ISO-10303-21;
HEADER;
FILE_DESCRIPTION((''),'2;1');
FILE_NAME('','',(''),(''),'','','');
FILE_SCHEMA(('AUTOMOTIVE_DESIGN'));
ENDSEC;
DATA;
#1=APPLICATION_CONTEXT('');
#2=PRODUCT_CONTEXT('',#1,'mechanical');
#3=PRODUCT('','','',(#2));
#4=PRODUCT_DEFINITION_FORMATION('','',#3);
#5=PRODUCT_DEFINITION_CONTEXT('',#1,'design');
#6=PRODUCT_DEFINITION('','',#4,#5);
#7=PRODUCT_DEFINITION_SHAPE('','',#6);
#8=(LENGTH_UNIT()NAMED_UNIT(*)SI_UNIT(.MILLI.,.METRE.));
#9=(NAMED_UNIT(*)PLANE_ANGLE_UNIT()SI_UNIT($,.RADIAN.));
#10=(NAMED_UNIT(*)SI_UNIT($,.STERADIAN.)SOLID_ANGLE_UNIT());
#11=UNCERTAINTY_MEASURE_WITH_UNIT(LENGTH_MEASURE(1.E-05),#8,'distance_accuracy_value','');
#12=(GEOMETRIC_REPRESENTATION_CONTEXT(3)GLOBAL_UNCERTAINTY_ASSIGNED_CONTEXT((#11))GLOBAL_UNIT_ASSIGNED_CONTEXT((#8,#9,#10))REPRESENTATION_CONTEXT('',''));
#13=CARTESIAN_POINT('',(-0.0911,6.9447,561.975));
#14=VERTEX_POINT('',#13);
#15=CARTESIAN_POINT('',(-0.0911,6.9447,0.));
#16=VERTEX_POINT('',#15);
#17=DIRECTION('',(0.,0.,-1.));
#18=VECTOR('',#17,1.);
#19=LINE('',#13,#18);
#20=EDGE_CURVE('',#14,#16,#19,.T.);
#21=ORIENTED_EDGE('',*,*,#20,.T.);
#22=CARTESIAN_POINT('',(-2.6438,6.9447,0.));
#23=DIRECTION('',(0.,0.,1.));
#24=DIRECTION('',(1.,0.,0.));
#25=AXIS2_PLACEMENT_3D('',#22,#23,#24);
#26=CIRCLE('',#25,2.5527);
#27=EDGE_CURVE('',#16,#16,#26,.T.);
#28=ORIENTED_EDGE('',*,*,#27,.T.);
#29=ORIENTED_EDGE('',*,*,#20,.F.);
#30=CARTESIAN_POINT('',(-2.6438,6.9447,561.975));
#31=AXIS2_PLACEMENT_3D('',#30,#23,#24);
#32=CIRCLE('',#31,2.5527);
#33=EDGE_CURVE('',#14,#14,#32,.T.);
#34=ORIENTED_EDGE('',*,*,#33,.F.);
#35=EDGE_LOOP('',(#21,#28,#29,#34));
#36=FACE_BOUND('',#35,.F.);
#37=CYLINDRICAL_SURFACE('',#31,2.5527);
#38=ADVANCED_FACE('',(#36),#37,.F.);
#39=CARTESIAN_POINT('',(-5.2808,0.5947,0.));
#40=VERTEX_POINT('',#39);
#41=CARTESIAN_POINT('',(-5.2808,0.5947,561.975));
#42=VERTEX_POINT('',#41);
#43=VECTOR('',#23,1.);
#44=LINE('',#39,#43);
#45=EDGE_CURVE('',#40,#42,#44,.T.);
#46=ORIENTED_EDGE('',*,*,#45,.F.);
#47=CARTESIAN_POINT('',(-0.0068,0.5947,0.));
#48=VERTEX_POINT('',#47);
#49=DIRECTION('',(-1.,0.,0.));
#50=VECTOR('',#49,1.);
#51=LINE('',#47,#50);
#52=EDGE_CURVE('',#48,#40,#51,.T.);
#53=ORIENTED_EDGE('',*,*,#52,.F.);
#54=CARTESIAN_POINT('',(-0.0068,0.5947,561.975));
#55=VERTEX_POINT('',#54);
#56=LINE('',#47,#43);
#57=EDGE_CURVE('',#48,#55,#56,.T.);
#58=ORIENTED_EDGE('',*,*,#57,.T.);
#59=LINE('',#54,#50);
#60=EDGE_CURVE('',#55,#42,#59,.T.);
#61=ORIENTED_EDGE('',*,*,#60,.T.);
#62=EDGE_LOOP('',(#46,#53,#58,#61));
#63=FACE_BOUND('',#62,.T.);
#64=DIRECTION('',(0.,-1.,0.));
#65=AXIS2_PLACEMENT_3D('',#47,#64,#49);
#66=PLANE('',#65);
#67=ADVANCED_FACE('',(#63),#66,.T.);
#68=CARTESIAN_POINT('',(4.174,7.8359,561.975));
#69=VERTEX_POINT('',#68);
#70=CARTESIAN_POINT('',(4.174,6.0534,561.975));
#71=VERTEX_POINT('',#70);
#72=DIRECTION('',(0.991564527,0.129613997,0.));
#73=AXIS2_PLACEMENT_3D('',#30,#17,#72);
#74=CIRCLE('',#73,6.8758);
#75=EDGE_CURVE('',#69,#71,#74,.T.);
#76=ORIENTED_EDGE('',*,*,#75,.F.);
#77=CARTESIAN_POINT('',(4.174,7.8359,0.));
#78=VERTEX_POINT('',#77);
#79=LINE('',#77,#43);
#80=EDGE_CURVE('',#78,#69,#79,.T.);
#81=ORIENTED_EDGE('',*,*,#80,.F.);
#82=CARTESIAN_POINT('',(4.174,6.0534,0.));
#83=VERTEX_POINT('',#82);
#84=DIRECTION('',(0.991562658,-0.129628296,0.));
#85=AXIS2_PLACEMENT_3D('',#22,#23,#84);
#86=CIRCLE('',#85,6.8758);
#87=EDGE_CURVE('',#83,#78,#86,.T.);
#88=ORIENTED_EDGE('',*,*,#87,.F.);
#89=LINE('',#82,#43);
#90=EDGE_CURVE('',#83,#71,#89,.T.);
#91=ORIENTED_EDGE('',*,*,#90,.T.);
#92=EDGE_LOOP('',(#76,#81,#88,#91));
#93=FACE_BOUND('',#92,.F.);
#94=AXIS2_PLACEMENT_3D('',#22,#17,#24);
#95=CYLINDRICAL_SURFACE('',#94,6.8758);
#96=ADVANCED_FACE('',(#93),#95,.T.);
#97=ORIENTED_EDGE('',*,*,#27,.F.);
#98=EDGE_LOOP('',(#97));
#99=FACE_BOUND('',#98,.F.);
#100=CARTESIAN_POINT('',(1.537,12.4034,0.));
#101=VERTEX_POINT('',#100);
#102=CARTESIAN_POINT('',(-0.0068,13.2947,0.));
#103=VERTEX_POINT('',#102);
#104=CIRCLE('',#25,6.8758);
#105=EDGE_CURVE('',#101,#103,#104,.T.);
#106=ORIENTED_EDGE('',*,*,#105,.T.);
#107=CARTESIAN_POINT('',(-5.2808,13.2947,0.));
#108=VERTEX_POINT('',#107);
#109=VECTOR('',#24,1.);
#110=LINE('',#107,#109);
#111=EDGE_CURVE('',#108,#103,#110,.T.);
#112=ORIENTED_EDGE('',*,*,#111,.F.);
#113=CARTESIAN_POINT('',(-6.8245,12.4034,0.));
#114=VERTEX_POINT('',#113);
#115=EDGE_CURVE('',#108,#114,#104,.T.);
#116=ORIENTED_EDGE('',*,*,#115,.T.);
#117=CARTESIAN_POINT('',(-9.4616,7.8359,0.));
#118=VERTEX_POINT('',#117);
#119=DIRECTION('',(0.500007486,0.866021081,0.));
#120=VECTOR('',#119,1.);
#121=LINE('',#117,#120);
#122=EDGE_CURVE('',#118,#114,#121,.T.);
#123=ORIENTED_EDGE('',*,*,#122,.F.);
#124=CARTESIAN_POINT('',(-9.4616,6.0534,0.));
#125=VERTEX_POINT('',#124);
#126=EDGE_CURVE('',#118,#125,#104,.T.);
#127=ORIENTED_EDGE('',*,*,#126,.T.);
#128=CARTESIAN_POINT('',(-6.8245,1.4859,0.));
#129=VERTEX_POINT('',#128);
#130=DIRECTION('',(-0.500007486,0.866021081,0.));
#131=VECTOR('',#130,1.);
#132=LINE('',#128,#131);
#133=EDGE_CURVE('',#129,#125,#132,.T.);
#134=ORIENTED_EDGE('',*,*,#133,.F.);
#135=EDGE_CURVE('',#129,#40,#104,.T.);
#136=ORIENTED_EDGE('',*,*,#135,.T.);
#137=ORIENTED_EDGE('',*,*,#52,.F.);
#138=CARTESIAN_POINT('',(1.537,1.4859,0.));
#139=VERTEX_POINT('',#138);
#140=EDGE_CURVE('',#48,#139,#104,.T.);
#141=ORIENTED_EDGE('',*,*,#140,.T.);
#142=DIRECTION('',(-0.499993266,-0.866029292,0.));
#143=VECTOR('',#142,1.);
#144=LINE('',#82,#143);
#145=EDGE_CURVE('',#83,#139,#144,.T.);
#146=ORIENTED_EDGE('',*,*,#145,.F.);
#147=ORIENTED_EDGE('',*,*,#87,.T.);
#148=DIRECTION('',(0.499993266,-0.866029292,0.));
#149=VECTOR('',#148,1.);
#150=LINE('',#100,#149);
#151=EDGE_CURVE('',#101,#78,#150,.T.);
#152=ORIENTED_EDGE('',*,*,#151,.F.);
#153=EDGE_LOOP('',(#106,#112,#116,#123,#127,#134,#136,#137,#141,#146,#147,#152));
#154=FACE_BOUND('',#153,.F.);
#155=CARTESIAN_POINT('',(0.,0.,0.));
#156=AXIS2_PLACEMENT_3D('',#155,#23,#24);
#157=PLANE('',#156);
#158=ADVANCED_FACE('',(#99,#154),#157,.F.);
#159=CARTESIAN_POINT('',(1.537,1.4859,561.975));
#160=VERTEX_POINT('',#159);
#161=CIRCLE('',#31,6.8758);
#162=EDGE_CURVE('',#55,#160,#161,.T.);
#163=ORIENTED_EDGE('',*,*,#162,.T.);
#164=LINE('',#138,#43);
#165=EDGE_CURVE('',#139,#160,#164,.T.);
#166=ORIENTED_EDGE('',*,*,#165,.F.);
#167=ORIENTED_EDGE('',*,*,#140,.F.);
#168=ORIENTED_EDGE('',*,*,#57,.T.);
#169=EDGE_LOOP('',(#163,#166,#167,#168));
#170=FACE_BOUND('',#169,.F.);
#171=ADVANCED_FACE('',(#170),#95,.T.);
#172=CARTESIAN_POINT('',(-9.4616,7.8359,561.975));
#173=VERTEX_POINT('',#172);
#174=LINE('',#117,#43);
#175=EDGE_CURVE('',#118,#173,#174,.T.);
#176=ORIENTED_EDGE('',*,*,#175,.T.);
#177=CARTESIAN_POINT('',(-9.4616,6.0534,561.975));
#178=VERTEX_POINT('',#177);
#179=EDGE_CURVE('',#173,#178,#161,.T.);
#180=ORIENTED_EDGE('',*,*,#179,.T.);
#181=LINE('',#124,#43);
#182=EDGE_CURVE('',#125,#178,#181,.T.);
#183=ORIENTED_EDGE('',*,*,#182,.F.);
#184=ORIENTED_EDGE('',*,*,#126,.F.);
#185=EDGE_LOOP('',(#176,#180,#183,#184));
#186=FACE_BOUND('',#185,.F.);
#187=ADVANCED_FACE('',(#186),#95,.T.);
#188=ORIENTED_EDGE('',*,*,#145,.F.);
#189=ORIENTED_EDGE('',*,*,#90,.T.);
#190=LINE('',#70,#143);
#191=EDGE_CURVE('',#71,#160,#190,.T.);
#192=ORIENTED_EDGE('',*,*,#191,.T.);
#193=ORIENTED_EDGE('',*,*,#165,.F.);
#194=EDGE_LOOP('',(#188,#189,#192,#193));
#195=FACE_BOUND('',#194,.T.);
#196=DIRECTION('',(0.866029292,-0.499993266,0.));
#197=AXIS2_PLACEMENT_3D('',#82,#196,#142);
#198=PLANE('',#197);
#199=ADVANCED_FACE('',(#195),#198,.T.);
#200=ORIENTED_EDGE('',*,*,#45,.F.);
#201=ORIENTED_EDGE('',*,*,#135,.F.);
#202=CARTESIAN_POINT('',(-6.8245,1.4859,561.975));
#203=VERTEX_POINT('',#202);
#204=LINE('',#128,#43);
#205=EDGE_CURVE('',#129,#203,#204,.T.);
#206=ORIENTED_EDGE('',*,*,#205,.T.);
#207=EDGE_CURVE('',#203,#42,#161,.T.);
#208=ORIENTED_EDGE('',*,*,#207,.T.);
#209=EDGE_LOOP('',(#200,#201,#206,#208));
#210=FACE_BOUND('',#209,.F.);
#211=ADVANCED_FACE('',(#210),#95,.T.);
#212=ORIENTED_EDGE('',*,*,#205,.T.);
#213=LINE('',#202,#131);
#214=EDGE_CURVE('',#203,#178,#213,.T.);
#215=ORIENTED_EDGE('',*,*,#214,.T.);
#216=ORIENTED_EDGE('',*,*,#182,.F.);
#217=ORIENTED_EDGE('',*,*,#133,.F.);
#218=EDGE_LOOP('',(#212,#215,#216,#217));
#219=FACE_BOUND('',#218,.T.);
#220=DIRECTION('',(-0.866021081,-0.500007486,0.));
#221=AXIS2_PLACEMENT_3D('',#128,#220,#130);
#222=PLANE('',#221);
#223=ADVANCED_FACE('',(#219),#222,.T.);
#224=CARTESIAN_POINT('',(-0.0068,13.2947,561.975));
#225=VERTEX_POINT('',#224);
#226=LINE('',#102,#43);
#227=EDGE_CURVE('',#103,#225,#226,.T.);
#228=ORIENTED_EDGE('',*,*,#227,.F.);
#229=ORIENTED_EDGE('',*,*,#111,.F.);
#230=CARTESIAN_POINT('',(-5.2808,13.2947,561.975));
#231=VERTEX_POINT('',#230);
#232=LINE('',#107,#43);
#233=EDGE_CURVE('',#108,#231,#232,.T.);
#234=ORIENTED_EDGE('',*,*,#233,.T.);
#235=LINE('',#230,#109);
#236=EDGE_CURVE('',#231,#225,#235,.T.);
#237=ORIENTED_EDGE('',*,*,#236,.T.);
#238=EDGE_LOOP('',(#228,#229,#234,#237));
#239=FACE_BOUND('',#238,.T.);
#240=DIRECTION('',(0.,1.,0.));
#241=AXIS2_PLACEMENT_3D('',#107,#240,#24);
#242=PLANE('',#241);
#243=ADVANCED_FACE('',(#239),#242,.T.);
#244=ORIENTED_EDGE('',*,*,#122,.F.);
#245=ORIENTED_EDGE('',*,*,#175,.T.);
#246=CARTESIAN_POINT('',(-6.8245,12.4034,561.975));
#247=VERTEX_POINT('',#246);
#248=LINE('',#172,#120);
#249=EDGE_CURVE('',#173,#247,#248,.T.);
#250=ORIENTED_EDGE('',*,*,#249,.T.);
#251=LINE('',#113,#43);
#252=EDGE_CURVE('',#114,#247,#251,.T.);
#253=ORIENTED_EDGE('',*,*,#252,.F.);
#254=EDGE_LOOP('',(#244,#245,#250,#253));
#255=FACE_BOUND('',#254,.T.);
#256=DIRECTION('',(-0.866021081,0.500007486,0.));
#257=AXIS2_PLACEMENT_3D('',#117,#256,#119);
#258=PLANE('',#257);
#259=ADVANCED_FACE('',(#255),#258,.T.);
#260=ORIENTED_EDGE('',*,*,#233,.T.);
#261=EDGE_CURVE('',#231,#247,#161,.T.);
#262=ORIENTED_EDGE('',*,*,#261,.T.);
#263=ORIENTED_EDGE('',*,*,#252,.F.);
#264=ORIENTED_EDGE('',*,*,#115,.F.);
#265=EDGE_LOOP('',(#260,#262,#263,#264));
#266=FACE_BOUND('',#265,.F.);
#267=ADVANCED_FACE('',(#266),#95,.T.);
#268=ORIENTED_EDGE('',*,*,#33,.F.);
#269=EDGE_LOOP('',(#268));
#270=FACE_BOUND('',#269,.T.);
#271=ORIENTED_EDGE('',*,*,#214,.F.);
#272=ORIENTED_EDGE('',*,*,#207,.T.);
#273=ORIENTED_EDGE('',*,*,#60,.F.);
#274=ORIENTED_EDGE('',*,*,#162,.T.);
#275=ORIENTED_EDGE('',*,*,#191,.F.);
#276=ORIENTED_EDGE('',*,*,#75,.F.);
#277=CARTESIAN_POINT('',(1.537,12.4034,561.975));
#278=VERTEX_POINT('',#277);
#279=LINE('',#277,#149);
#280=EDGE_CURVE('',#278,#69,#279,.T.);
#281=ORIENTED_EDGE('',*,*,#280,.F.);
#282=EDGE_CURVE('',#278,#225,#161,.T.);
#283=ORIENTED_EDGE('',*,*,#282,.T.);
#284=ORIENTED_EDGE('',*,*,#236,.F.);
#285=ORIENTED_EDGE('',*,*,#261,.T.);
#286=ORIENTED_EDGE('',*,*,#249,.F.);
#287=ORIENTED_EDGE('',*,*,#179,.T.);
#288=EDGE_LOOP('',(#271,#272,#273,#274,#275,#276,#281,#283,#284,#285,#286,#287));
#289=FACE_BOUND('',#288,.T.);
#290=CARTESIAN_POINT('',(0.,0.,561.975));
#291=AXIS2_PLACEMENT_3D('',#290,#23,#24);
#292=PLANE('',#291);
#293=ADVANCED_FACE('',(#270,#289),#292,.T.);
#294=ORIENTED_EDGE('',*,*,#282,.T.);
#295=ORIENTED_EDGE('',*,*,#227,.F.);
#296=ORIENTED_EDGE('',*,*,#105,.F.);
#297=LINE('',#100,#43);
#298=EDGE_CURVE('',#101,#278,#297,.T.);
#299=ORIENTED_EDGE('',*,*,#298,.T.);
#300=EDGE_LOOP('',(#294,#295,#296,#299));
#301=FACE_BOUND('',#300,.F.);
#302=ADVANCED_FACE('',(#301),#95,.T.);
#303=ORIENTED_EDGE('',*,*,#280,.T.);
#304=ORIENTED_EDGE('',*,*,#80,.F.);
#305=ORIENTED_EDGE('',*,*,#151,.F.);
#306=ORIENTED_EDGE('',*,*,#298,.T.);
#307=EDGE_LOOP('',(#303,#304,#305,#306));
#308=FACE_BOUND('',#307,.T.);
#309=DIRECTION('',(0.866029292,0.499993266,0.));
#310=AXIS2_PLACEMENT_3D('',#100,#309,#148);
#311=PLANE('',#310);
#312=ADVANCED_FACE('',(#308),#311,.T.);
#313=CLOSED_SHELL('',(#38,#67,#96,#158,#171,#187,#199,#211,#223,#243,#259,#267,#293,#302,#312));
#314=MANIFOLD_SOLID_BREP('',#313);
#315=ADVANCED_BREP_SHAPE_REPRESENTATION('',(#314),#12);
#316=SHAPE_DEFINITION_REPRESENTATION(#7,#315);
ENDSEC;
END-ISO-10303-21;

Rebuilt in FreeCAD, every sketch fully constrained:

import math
import FreeCAD as App
import Part
import Sketcher
Q = App.Units.Quantity

doc = App.newDocument("Part")
params = doc.addObject("Spreadsheet::Sheet", "Params")
for row, (alias, value) in enumerate([
    ("pad1_length", "22.125 in"),
    ("sketch2_diameter", "0.201 in"),
    ("pocket1_length", "22.125 in"),
], start=1):
    params.set(f"A{row}", alias)
    params.set(f"B{row}", "=" + value)
    params.setAlias(f"B{row}", alias)

body = doc.addObject("PartDesign::Body", "Body")

# Sketch on XY plane
sketch1 = body.newObject("Sketcher::SketchObject", "Sketch")
sketch1.AttachmentSupport = (doc.getObject("XY_Plane"), [""])
sketch1.MapMode = "FlatFace"
sketch1.addGeometry(Part.ArcOfCircle(Part.Circle(App.Vector(-2.6, 6.9, 0), App.Vector(0, 0, 1), 6.9), math.radians(-7.45), math.radians(7.45)), False)
sketch1.addGeometry(Part.LineSegment(App.Vector(4.2, 7.8, 0), App.Vector(1.5, 12.4, 0)), False)
sketch1.addGeometry(Part.ArcOfCircle(Part.Circle(App.Vector(-2.6, 6.9, 0), App.Vector(0, 0, 1), 6.9), math.radians(52.55), math.radians(67.45)), False)
sketch1.addGeometry(Part.LineSegment(App.Vector(0, 13.3, 0), App.Vector(-5.3, 13.3, 0)), False)
sketch1.addGeometry(Part.ArcOfCircle(Part.Circle(App.Vector(-2.6, 6.9, 0), App.Vector(0, 0, 1), 6.9), math.radians(112.55), math.radians(127.45)), False)
sketch1.addGeometry(Part.LineSegment(App.Vector(-6.8, 12.4, 0), App.Vector(-9.5, 7.8, 0)), False)
sketch1.addGeometry(Part.ArcOfCircle(Part.Circle(App.Vector(-2.6, 6.9, 0), App.Vector(0, 0, 1), 6.9), math.radians(172.55), math.radians(187.45)), False)
sketch1.addGeometry(Part.LineSegment(App.Vector(-9.5, 6.1, 0), App.Vector(-6.8, 1.5, 0)), False)
sketch1.addGeometry(Part.ArcOfCircle(Part.Circle(App.Vector(-2.6, 6.9, 0), App.Vector(0, 0, 1), 6.9), math.radians(-127.45), math.radians(-112.55)), False)
sketch1.addGeometry(Part.LineSegment(App.Vector(-5.3, 0.6, 0), App.Vector(0, 0.6, 0)), False)
sketch1.addGeometry(Part.ArcOfCircle(Part.Circle(App.Vector(-2.6, 6.9, 0), App.Vector(0, 0, 1), 6.9), math.radians(-67.45), math.radians(-52.55)), False)
sketch1.addGeometry(Part.LineSegment(App.Vector(1.5, 1.5, 0), App.Vector(4.2, 6.1, 0)), False)
sketch1.addConstraint(Sketcher.Constraint("Coincident", 0, 2, 1, 1))
sketch1.addConstraint(Sketcher.Constraint("Coincident", 1, 2, 2, 1))
sketch1.addConstraint(Sketcher.Constraint("Coincident", 2, 2, 3, 1))
sketch1.addConstraint(Sketcher.Constraint("Coincident", 3, 2, 4, 1))
sketch1.addConstraint(Sketcher.Constraint("Coincident", 4, 2, 5, 1))
sketch1.addConstraint(Sketcher.Constraint("Coincident", 5, 2, 6, 1))
sketch1.addConstraint(Sketcher.Constraint("Coincident", 6, 2, 7, 1))
sketch1.addConstraint(Sketcher.Constraint("Coincident", 7, 2, 8, 1))
sketch1.addConstraint(Sketcher.Constraint("Coincident", 8, 2, 9, 1))
sketch1.addConstraint(Sketcher.Constraint("Coincident", 9, 2, 10, 1))
sketch1.addConstraint(Sketcher.Constraint("Coincident", 10, 2, 11, 1))
sketch1.addConstraint(Sketcher.Constraint("Coincident", 11, 2, 0, 1))
sketch1.addConstraint(Sketcher.Constraint("Horizontal", 3))
sketch1.addConstraint(Sketcher.Constraint("Horizontal", 9))
sketch1.addConstraint(Sketcher.Constraint("Coincident", 2, 3, 0, 3))
sketch1.addConstraint(Sketcher.Constraint("Coincident", 4, 3, 0, 3))
sketch1.addConstraint(Sketcher.Constraint("Coincident", 6, 3, 0, 3))
sketch1.addConstraint(Sketcher.Constraint("Coincident", 8, 3, 0, 3))
sketch1.addConstraint(Sketcher.Constraint("Coincident", 10, 3, 0, 3))
sketch1.addConstraint(Sketcher.Constraint("Equal", 0, 2))
sketch1.addConstraint(Sketcher.Constraint("Equal", 2, 4))
sketch1.addConstraint(Sketcher.Constraint("Equal", 4, 6))
sketch1.addConstraint(Sketcher.Constraint("Equal", 6, 8))
sketch1.addConstraint(Sketcher.Constraint("Equal", 8, 10))
sketch1.addConstraint(Sketcher.Constraint("Parallel", 1, 7))
sketch1.addConstraint(Sketcher.Constraint("Parallel", 5, 11))
sketch1.addConstraint(Sketcher.Constraint("Horizontal", 1, 2, 4, 2))
sketch1.addConstraint(Sketcher.Constraint("Horizontal", 0, 2, 5, 2))
sketch1.addConstraint(Sketcher.Constraint("Horizontal", 7, 2, 10, 2))
sketch1.addConstraint(Sketcher.Constraint("Vertical", 5, 2, 6, 2))
sketch1.addConstraint(Sketcher.Constraint("Vertical", 3, 2, 8, 2))
sketch1.addConstraint(Sketcher.Constraint("Radius", 0, Q("0.2707 in")))
sketch1.addConstraint(Sketcher.Constraint("Angle", 1, Q("119.9996 deg")))
sketch1.addConstraint(Sketcher.Constraint("DistanceY", 0, 3, 2, 2, Q("0.25 in")))
sketch1.addConstraint(Sketcher.Constraint("DistanceY", 10, 2, 0, 2, Q("0.25 in")))
sketch1.addConstraint(Sketcher.Constraint("DistanceY", -1, 1, 0, 2, Q("0.3085 in")))
sketch1.addConstraint(Sketcher.Constraint("DistanceX", -1, 1, 1, 2, Q("0.0605 in")))
pad1 = body.newObject("PartDesign::Pad", "Pad")
pad1.Profile = sketch1
pad1.setExpression("Length", "Params.pad1_length")

# Sketch on XY plane
sketch2 = body.newObject("Sketcher::SketchObject", "Sketch001")
sketch2.AttachmentSupport = (doc.getObject("XY_Plane"), [""])
sketch2.MapMode = "FlatFace"
sketch2.AttachmentOffset = App.Placement(App.Vector(0, 0, 22.125 * 25.4), App.Rotation())
sketch2.addGeometry(Part.Circle(App.Vector(-2.6, 6.9, 0), App.Vector(0, 0, 1), 2.6), False)
sketch2.addConstraint(Sketcher.Constraint("Diameter", 0, Q("0.201 in")))
sketch2.addConstraint(Sketcher.Constraint("DistanceX", 0, 3, -1, 1, 2.6438))
sketch2.addConstraint(Sketcher.Constraint("DistanceY", -1, 1, 0, 3, 6.9447))
sketch2.setExpression("Constraints[0]", "Params.sketch2_diameter")
pocket1 = body.newObject("PartDesign::Pocket", "Pocket")
pocket1.Profile = sketch2
pocket1.setExpression("Length", "Params.pocket1_length")

doc.recompute()
